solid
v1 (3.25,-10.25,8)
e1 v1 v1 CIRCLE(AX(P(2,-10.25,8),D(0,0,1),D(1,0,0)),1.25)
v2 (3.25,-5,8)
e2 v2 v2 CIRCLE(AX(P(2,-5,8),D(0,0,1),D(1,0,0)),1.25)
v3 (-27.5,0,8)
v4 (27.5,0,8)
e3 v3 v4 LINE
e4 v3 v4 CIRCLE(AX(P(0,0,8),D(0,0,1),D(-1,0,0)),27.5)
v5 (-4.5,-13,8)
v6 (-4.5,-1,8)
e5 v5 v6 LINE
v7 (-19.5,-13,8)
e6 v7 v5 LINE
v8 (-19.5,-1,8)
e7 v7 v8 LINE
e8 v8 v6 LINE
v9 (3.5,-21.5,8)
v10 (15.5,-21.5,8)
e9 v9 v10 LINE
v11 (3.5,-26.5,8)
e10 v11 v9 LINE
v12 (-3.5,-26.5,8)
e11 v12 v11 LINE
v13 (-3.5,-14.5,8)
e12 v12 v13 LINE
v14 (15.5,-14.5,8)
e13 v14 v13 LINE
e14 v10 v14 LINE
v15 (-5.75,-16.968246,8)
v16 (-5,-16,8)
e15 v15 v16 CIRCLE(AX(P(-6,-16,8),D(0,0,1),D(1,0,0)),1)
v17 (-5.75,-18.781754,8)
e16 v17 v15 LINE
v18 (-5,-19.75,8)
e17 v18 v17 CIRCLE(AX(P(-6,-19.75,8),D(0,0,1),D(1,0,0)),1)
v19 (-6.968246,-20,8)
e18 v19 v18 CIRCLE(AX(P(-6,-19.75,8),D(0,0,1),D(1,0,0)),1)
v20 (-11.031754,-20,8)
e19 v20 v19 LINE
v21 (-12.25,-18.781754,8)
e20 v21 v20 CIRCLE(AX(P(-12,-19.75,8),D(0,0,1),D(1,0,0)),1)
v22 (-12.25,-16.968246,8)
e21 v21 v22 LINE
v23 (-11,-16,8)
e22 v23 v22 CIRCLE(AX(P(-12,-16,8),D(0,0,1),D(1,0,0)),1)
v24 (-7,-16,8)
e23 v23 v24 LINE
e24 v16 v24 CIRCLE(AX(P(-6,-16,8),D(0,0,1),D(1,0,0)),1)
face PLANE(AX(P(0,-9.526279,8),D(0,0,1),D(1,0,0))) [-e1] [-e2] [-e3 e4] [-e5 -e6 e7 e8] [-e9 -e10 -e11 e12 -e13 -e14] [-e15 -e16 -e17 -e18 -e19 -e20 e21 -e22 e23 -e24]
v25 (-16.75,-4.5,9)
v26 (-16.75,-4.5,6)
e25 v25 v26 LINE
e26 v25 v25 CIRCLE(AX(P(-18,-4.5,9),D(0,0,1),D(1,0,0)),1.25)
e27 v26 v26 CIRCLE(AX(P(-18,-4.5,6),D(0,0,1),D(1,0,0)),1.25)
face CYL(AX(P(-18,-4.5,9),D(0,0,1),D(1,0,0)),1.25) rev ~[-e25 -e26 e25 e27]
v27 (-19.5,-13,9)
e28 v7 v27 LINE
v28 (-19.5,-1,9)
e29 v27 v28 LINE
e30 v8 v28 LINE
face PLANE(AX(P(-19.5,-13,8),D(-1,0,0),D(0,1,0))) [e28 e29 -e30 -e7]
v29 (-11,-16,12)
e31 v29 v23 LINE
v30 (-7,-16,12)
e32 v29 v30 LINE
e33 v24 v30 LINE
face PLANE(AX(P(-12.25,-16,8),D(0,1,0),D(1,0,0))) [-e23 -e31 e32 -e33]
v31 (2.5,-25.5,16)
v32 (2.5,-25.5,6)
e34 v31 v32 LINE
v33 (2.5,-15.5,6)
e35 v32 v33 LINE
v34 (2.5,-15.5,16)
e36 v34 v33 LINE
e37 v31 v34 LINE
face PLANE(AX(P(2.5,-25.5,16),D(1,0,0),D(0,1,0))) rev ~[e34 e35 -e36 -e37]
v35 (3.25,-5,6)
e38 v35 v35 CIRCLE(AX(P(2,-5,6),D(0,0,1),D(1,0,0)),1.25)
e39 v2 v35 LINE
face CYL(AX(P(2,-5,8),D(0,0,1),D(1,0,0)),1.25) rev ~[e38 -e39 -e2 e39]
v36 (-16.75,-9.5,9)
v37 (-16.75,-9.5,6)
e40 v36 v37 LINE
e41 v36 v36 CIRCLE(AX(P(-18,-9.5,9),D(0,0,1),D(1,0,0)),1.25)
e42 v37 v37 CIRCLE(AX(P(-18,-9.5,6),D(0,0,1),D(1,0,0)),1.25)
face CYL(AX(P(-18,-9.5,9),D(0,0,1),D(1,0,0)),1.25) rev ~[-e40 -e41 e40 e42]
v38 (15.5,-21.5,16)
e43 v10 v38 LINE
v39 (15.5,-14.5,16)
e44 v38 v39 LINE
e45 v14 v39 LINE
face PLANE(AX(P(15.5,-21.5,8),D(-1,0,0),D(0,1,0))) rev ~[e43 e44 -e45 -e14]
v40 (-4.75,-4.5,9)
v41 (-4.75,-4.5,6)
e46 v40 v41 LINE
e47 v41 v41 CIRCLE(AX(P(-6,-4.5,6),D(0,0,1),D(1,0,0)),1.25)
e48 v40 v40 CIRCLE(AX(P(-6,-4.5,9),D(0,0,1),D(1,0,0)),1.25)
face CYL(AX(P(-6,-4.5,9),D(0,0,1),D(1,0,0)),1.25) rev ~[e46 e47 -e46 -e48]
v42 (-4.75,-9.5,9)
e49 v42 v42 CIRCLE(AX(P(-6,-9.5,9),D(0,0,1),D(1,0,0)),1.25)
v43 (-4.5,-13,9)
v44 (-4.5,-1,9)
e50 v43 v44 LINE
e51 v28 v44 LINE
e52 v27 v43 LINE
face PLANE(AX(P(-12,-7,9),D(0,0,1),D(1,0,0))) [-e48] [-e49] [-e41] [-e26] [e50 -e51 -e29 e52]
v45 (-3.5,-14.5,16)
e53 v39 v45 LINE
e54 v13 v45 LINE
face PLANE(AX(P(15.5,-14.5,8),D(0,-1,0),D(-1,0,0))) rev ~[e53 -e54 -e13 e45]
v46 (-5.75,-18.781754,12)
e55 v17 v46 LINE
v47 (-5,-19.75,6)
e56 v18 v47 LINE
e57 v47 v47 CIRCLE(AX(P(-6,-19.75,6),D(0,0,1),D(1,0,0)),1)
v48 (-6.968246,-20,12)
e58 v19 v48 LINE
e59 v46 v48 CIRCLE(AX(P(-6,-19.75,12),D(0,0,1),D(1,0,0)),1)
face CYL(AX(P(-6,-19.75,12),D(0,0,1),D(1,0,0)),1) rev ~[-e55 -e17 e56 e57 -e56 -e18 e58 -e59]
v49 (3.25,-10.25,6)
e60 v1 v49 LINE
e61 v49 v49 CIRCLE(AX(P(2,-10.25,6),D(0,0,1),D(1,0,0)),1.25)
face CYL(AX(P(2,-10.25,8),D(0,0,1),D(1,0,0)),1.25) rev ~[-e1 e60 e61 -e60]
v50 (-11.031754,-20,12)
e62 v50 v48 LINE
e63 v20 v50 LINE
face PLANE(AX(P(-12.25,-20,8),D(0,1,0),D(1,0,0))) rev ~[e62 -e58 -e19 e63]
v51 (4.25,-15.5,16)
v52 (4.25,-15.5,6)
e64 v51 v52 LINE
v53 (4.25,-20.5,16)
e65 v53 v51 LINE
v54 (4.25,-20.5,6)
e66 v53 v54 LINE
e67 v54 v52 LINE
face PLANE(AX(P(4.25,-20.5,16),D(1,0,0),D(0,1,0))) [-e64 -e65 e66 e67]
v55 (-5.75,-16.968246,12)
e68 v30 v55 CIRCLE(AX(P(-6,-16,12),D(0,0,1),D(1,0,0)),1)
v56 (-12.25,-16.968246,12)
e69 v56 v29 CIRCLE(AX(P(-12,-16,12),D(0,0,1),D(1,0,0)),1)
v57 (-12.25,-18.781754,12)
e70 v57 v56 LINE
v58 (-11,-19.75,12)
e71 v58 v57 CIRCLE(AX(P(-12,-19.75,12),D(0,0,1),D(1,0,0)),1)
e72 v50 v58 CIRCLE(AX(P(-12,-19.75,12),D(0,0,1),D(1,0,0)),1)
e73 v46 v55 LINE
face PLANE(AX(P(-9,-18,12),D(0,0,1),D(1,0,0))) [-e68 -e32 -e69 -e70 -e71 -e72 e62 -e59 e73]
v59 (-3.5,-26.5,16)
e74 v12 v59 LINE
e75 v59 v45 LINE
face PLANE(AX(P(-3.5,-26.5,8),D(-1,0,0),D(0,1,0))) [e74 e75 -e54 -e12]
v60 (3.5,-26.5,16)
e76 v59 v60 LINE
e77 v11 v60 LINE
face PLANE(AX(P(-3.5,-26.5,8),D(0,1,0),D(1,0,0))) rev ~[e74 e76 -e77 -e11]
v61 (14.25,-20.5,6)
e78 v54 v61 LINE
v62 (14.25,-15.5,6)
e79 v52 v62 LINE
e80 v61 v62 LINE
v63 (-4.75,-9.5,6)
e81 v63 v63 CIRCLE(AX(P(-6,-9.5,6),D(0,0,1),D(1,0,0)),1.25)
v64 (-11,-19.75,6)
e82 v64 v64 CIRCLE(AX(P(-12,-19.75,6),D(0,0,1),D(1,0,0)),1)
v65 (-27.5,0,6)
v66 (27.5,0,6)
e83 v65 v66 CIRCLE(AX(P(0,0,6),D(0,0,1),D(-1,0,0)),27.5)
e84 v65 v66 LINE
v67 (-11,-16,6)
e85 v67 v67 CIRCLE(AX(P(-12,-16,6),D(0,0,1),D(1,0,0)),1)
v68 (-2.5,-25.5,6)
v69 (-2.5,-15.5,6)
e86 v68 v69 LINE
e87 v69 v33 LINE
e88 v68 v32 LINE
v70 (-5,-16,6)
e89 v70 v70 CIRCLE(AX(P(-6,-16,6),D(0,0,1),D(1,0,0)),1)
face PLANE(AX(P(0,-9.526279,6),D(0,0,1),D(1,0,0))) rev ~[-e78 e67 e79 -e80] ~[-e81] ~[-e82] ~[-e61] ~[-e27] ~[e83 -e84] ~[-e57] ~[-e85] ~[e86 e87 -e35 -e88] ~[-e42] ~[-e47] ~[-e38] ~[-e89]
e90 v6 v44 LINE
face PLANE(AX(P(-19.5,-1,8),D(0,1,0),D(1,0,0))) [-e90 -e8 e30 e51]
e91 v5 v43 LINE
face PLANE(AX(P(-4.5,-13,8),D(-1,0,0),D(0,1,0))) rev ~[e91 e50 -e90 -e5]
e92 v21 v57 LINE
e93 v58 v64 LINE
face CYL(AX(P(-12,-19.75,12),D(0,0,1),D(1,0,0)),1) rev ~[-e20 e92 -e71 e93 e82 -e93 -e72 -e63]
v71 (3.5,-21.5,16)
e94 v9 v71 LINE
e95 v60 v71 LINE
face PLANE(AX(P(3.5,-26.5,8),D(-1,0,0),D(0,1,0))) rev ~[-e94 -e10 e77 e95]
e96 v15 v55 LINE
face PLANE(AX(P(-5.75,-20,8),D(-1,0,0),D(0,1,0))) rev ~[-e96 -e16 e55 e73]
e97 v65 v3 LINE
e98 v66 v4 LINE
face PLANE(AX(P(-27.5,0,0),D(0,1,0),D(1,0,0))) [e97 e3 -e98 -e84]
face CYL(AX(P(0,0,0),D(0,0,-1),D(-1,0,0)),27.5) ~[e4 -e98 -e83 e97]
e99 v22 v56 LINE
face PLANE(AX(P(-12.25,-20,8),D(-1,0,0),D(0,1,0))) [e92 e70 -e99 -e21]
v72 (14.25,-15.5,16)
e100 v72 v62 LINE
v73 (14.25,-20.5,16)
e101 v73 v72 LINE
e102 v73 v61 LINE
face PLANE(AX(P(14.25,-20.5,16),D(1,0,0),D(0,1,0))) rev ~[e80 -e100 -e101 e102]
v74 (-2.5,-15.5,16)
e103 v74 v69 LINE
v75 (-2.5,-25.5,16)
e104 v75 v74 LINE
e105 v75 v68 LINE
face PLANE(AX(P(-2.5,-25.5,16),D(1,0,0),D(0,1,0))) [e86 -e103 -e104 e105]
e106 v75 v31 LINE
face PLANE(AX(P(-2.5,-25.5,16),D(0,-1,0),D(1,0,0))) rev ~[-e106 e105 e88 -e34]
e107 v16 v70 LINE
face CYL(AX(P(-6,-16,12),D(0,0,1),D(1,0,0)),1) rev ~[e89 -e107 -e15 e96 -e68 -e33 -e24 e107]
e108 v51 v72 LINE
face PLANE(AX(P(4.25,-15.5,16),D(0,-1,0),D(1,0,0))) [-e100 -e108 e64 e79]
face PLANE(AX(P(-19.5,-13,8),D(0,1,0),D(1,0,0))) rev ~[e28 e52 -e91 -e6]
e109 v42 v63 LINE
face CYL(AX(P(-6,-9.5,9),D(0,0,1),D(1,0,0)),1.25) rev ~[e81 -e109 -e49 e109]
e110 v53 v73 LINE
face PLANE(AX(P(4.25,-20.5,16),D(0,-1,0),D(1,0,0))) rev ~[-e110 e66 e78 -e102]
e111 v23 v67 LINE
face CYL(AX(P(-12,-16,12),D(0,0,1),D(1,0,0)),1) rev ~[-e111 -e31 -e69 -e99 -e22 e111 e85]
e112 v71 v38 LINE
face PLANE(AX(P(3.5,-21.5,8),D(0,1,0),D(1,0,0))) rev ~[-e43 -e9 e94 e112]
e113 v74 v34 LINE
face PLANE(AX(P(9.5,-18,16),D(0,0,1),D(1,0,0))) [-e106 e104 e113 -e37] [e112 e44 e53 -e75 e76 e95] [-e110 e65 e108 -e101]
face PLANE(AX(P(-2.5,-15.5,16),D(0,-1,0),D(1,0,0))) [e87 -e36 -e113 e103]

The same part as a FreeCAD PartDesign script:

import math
import FreeCAD as App
import Part
import Sketcher

V = App.Vector


def add_polygon(sketch, points):
    """Adds a closed chain of lines whose ends are joined by coincident constraints."""
    first, n = sketch.GeometryCount, len(points)
    for a, b in zip(points, points[1:] + points[:1]):
        sketch.addGeometry(Part.LineSegment(App.Vector(*a, 0), App.Vector(*b, 0)), False)
    for i in range(n):
        sketch.addConstraint(Sketcher.Constraint("Coincident", first + i, 2, first + (i + 1) % n, 1))

doc = App.newDocument("Part")
body = doc.addObject("PartDesign::Body", "Body")
body.AllowCompound = True

# Sketch on XY plane
sketch1 = body.newObject("Sketcher::SketchObject", "Sketch")
sketch1.AttachmentSupport = (doc.getObject("XY_Plane"), [""])
sketch1.MapMode = "FlatFace"
sketch1.AttachmentOffset = App.Placement(V(0, 0, 16), App.Rotation())
add_polygon(sketch1, [(-2, -16), (-2, -26), (2, -26), (2, -16)])  # lines 0-3
add_polygon(sketch1, [(4, -16), (4, -20), (14, -20), (14, -16)])  # lines 4-7
sketch1.addConstraint([
    Sketcher.Constraint("Vertical", 0),
    Sketcher.Constraint("Horizontal", 1),
    Sketcher.Constraint("Vertical", 2),
    Sketcher.Constraint("Horizontal", 3),
    Sketcher.Constraint("Vertical", 4),
    Sketcher.Constraint("Horizontal", 5),
    Sketcher.Constraint("Vertical", 6),
    Sketcher.Constraint("Horizontal", 7),
    Sketcher.Constraint("Horizontal", 3, 2, 6, 2),
    Sketcher.Constraint("Equal", 7, 0),
    Sketcher.Constraint("Equal", 3, 4),
    Sketcher.Constraint("DistanceX", 1, 1, 1, 2, 5.0),
    Sketcher.Constraint("DistanceX", 5, 1, 5, 2, 10.0),
    Sketcher.Constraint("DistanceX", 0, 2, -1, 1, 2.5),
    Sketcher.Constraint("DistanceY", 0, 2, -1, 1, 25.5),
    Sketcher.Constraint("DistanceX", -1, 1, 4, 2, 4.25),
])
pad1 = body.newObject("PartDesign::Pad", "Pad")
pad1.Profile = sketch1
pad1.Length = 10
pad1.Reversed = True
body2 = doc.addObject("PartDesign::Body", "Body001")
body2.AllowCompound = True

# Sketch on XY plane
sketch2 = body2.newObject("Sketcher::SketchObject", "Sketch001")
sketch2.AttachmentSupport = (doc.getObject("XY_Plane001"), [""])
sketch2.MapMode = "FlatFace"
sketch2.AttachmentOffset = App.Placement(V(0, 0, 12), App.Rotation())
sketch2.addGeometry([
    Part.Circle(V(-12, -16, 0), V(0, 0, 1), 1),
    Part.Circle(V(-6, -19.8, 0), V(0, 0, 1), 1),
    Part.Circle(V(-6, -16, 0), V(0, 0, 1), 1),
    Part.Circle(V(-12, -19.8, 0), V(0, 0, 1), 1),
], False)
sketch2.addConstraint([
    Sketcher.Constraint("Equal", 0, 1),
    Sketcher.Constraint("Equal", 1, 2),
    Sketcher.Constraint("Equal", 2, 3),
    Sketcher.Constraint("Horizontal", 0, 3, 2, 3),
    Sketcher.Constraint("Horizontal", 1, 3, 3, 3),
    Sketcher.Constraint("Vertical", 1, 3, 2, 3),
    Sketcher.Constraint("Vertical", 0, 3, 3, 3),
    Sketcher.Constraint("Diameter", 0, 2.0),
    Sketcher.Constraint("DistanceX", 0, 3, -1, 1, 12.0),
    Sketcher.Constraint("DistanceY", 0, 3, -1, 1, 16.0),
    Sketcher.Constraint("DistanceX", 1, 3, -1, 1, 6.0),
    Sketcher.Constraint("DistanceY", 1, 3, -1, 1, 19.75),
])
pad2 = body2.newObject("PartDesign::Pad", "Pad001")
pad2.Profile = sketch2
pad2.Length = 6
pad2.Reversed = True
body3 = doc.addObject("PartDesign::Body", "Body002")
body3.AllowCompound = True

# Sketch on XY plane
sketch3 = body3.newObject("Sketcher::SketchObject", "Sketch002")
sketch3.AttachmentSupport = (doc.getObject("XY_Plane002"), [""])
sketch3.MapMode = "FlatFace"
sketch3.AttachmentOffset = App.Placement(V(0, 0, 9), App.Rotation())
sketch3.addGeometry([
    Part.Circle(V(-18, -9.5, 0), V(0, 0, 1), 1.2),
    Part.Circle(V(-18, -4.5, 0), V(0, 0, 1), 1.2),
    Part.Circle(V(-6, -9.5, 0), V(0, 0, 1), 1.2),
    Part.Circle(V(-6, -4.5, 0), V(0, 0, 1), 1.2),
], False)
sketch3.addConstraint([
    Sketcher.Constraint("Equal", 0, 1),
    Sketcher.Constraint("Equal", 1, 2),
    Sketcher.Constraint("Equal", 2, 3),
    Sketcher.Constraint("Horizontal", 0, 3, 2, 3),
    Sketcher.Constraint("Horizontal", 1, 3, 3, 3),
    Sketcher.Constraint("Vertical", 0, 3, 1, 3),
    Sketcher.Constraint("Vertical", 2, 3, 3, 3),
    Sketcher.Constraint("Diameter", 0, 2.5),
    Sketcher.Constraint("DistanceX", 0, 3, -1, 1, 18.0),
    Sketcher.Constraint("DistanceX", 2, 3, -1, 1, 6.0),
    Sketcher.Constraint("DistanceY", 0, 3, 1, 3, 5.0),
    Sketcher.Constraint("DistanceY", 0, 3, -1, 1, 9.5),
])
pad3 = body3.newObject("PartDesign::Pad", "Pad002")
pad3.Profile = sketch3
pad3.Length = 3
pad3.Reversed = True
body4 = doc.addObject("PartDesign::Body", "Body003")
body4.AllowCompound = True

# Sketch on XY plane
sketch4 = body4.newObject("Sketcher::SketchObject", "Sketch003")
sketch4.AttachmentSupport = (doc.getObject("XY_Plane003"), [""])
sketch4.MapMode = "FlatFace"
sketch4.AttachmentOffset = App.Placement(V(0, 0, 8), App.Rotation())
sketch4.addGeometry([
    Part.Circle(V(2, -10.2, 0), V(0, 0, 1), 1.2),
    Part.Circle(V(2, -5, 0), V(0, 0, 1), 1.2),
], False)
sketch4.addConstraint([
    Sketcher.Constraint("Equal", 0, 1),
    Sketcher.Constraint("Vertical", 0, 3, 1, 3),
    Sketcher.Constraint("Diameter", 0, 2.5),
    Sketcher.Constraint("DistanceX", -1, 1, 0, 3, 2.0),
    Sketcher.Constraint("DistanceY", 1, 3, -1, 1, 5.0),
    Sketcher.Constraint("DistanceY", 0, 3, -1, 1, 10.25),
])
pad4 = body4.newObject("PartDesign::Pad", "Pad003")
pad4.Profile = sketch4
pad4.Length = 3
pad4.Reversed = True
body5 = doc.addObject("PartDesign::Body", "Body004")

# Sketch on XY plane
sketch5 = body5.newObject("Sketcher::SketchObject", "Sketch004")
sketch5.AttachmentSupport = (doc.getObject("XY_Plane004"), [""])
sketch5.MapMode = "FlatFace"
sketch5.AttachmentOffset = App.Placement(V(0, 0, 8), App.Rotation())
add_polygon(sketch5, [(-12.2, -16), (-12.2, -20), (-5.8, -20), (-5.8, -16)])  # lines 0-3
sketch5.addConstraint([
    Sketcher.Constraint("Vertical", 0),
    Sketcher.Constraint("Horizontal", 1),
    Sketcher.Constraint("Vertical", 2),
    Sketcher.Constraint("Horizontal", 3),
    Sketcher.Constraint("DistanceY", 0, 2, 0, 1, 4.0),
    Sketcher.Constraint("DistanceX", 1, 1, 1, 2, 6.5),
    Sketcher.Constraint("DistanceY", 0, 2, -1, 1, 20.0),
    Sketcher.Constraint("DistanceX", 0, 2, -1, 1, 12.25),
])
pad5 = body5.newObject("PartDesign::Pad", "Pad004")
pad5.Profile = sketch5
pad5.Length = 4
body6 = doc.addObject("PartDesign::Body", "Body005")

# Sketch on XY plane
sketch6 = body6.newObject("Sketcher::SketchObject", "Sketch005")
sketch6.AttachmentSupport = (doc.getObject("XY_Plane005"), [""])
sketch6.MapMode = "FlatFace"
sketch6.AttachmentOffset = App.Placement(V(0, 0, 8), App.Rotation())
add_polygon(sketch6, [(4, -22), (16, -22), (16, -14), (-4, -14), (-4, -26), (4, -26)])  # lines 0-5
sketch6.addConstraint([
    Sketcher.Constraint("Horizontal", 0),
    Sketcher.Constraint("Vertical", 1),
    Sketcher.Constraint("Horizontal", 2),
    Sketcher.Constraint("Vertical", 3),
    Sketcher.Constraint("Horizontal", 4),
    Sketcher.Constraint("Vertical", 5),
    Sketcher.Constraint("Equal", 4, 1),
    Sketcher.Constraint("Equal", 0, 3),
    Sketcher.Constraint("DistanceX", 0, 1, 0, 2, 12.0),
    Sketcher.Constraint("DistanceX", 2, 2, 2, 1, 19.0),
    Sketcher.Constraint("DistanceX", -1, 1, 0, 2, 15.5),
    Sketcher.Constraint("DistanceY", 0, 2, -1, 1, 21.5),
])
pad6 = body6.newObject("PartDesign::Pad", "Pad005")
pad6.Profile = sketch6
pad6.Length = 8
body7 = doc.addObject("PartDesign::Body", "Body006")

# Sketch on XY plane
sketch7 = body7.newObject("Sketcher::SketchObject", "Sketch006")
sketch7.AttachmentSupport = (doc.getObject("XY_Plane006"), [""])
sketch7.MapMode = "FlatFace"
sketch7.AttachmentOffset = App.Placement(V(0, 0, 8), App.Rotation())
add_polygon(sketch7, [(-20, -1), (-20, -13), (-4, -13), (-4, -1)])  # lines 0-3
sketch7.addConstraint([
    Sketcher.Constraint("Vertical", 0),
    Sketcher.Constraint("Horizontal", 1),
    Sketcher.Constraint("Vertical", 2),
    Sketcher.Constraint("Horizontal", 3),
    Sketcher.Constraint("DistanceX", 1, 1, 1, 2, 15.0),
    Sketcher.Constraint("DistanceY", 0, 2, 0, 1, 12.0),
    Sketcher.Constraint("DistanceY", 0, 2, -1, 1, 13.0),
    Sketcher.Constraint("DistanceX", 0, 2, -1, 1, 19.5),
])
pad7 = body7.newObject("PartDesign::Pad", "Pad006")
pad7.Profile = sketch7
pad7.Length = 1
body8 = doc.addObject("PartDesign::Body", "Body007")

# Sketch on XY plane
sketch8 = body8.newObject("Sketcher::SketchObject", "Sketch007")
sketch8.AttachmentSupport = (doc.getObject("XY_Plane007"), [""])
sketch8.MapMode = "FlatFace"
sketch8.addGeometry([
    Part.ArcOfCircle(Part.Circle(V(0, 0, 0), V(0, 0, 1), 28), math.radians(180), math.radians(360)),
    Part.LineSegment(V(28, 0, 0), V(-28, 0, 0)),
], False)
sketch8.addConstraint([
    Sketcher.Constraint("Coincident", 0, 1, 1, 2),
    Sketcher.Constraint("Coincident", 1, 1, 0, 2),
    Sketcher.Constraint("Horizontal", 1),
    Sketcher.Constraint("Coincident", 0, 3, -1, 1),
    Sketcher.Constraint("PointOnObject", 0, 1, -1),
    Sketcher.Constraint("Radius", 0, 27.5),
])
pad8 = body8.newObject("PartDesign::Pad", "Pad007")
pad8.Profile = sketch8
pad8.Length = 6
body9 = doc.addObject("PartDesign::Body", "Body008")

# Sketch on XY plane
sketch9 = body9.newObject("Sketcher::SketchObject", "Sketch008")
sketch9.AttachmentSupport = (doc.getObject("XY_Plane008"), [""])
sketch9.MapMode = "FlatFace"
sketch9.addGeometry([
    Part.ArcOfCircle(Part.Circle(V(0, 0, 0), V(0, 0, 1), 28), math.radians(180), math.radians(360)),
    Part.LineSegment(V(28, 0, 0), V(-28, 0, 0)),
], False)
sketch9.addConstraint([
    Sketcher.Constraint("Coincident", 0, 1, 1, 2),
    Sketcher.Constraint("Coincident", 1, 1, 0, 2),
    Sketcher.Constraint("Horizontal", 1),
    Sketcher.Constraint("Coincident", 0, 3, -1, 1),
    Sketcher.Constraint("PointOnObject", 0, 1, -1),
    Sketcher.Constraint("Radius", 0, 27.5),
])
pad9 = body9.newObject("PartDesign::Pad", "Pad008")
pad9.Profile = sketch9
pad9.Length = 8
doc.recompute()

boolean = body9.newObject("PartDesign::Boolean", "Boolean")
boolean.Type = "Cut"
boolean.addObjects([body8])
doc.recompute()

boolean2 = body9.newObject("PartDesign::Boolean", "Boolean001")
boolean2.Type = "Fuse"
boolean2.addObjects([body7])
doc.recompute()

boolean3 = body9.newObject("PartDesign::Boolean", "Boolean002")
boolean3.Type = "Fuse"
boolean3.addObjects([body6])
doc.recompute()

boolean4 = body9.newObject("PartDesign::Boolean", "Boolean003")
boolean4.Type = "Fuse"
boolean4.addObjects([body5])
doc.recompute()

boolean5 = body9.newObject("PartDesign::Boolean", "Boolean004")
boolean5.Type = "Cut"
boolean5.addObjects([body4])
doc.recompute()

boolean6 = body9.newObject("PartDesign::Boolean", "Boolean005")
boolean6.Type = "Cut"
boolean6.addObjects([body3])
doc.recompute()

boolean7 = body9.newObject("PartDesign::Boolean", "Boolean006")
boolean7.Type = "Cut"
boolean7.addObjects([body2])
doc.recompute()

boolean8 = body9.newObject("PartDesign::Boolean", "Boolean007")
boolean8.Type = "Cut"
boolean8.addObjects([body])

doc.recompute()
